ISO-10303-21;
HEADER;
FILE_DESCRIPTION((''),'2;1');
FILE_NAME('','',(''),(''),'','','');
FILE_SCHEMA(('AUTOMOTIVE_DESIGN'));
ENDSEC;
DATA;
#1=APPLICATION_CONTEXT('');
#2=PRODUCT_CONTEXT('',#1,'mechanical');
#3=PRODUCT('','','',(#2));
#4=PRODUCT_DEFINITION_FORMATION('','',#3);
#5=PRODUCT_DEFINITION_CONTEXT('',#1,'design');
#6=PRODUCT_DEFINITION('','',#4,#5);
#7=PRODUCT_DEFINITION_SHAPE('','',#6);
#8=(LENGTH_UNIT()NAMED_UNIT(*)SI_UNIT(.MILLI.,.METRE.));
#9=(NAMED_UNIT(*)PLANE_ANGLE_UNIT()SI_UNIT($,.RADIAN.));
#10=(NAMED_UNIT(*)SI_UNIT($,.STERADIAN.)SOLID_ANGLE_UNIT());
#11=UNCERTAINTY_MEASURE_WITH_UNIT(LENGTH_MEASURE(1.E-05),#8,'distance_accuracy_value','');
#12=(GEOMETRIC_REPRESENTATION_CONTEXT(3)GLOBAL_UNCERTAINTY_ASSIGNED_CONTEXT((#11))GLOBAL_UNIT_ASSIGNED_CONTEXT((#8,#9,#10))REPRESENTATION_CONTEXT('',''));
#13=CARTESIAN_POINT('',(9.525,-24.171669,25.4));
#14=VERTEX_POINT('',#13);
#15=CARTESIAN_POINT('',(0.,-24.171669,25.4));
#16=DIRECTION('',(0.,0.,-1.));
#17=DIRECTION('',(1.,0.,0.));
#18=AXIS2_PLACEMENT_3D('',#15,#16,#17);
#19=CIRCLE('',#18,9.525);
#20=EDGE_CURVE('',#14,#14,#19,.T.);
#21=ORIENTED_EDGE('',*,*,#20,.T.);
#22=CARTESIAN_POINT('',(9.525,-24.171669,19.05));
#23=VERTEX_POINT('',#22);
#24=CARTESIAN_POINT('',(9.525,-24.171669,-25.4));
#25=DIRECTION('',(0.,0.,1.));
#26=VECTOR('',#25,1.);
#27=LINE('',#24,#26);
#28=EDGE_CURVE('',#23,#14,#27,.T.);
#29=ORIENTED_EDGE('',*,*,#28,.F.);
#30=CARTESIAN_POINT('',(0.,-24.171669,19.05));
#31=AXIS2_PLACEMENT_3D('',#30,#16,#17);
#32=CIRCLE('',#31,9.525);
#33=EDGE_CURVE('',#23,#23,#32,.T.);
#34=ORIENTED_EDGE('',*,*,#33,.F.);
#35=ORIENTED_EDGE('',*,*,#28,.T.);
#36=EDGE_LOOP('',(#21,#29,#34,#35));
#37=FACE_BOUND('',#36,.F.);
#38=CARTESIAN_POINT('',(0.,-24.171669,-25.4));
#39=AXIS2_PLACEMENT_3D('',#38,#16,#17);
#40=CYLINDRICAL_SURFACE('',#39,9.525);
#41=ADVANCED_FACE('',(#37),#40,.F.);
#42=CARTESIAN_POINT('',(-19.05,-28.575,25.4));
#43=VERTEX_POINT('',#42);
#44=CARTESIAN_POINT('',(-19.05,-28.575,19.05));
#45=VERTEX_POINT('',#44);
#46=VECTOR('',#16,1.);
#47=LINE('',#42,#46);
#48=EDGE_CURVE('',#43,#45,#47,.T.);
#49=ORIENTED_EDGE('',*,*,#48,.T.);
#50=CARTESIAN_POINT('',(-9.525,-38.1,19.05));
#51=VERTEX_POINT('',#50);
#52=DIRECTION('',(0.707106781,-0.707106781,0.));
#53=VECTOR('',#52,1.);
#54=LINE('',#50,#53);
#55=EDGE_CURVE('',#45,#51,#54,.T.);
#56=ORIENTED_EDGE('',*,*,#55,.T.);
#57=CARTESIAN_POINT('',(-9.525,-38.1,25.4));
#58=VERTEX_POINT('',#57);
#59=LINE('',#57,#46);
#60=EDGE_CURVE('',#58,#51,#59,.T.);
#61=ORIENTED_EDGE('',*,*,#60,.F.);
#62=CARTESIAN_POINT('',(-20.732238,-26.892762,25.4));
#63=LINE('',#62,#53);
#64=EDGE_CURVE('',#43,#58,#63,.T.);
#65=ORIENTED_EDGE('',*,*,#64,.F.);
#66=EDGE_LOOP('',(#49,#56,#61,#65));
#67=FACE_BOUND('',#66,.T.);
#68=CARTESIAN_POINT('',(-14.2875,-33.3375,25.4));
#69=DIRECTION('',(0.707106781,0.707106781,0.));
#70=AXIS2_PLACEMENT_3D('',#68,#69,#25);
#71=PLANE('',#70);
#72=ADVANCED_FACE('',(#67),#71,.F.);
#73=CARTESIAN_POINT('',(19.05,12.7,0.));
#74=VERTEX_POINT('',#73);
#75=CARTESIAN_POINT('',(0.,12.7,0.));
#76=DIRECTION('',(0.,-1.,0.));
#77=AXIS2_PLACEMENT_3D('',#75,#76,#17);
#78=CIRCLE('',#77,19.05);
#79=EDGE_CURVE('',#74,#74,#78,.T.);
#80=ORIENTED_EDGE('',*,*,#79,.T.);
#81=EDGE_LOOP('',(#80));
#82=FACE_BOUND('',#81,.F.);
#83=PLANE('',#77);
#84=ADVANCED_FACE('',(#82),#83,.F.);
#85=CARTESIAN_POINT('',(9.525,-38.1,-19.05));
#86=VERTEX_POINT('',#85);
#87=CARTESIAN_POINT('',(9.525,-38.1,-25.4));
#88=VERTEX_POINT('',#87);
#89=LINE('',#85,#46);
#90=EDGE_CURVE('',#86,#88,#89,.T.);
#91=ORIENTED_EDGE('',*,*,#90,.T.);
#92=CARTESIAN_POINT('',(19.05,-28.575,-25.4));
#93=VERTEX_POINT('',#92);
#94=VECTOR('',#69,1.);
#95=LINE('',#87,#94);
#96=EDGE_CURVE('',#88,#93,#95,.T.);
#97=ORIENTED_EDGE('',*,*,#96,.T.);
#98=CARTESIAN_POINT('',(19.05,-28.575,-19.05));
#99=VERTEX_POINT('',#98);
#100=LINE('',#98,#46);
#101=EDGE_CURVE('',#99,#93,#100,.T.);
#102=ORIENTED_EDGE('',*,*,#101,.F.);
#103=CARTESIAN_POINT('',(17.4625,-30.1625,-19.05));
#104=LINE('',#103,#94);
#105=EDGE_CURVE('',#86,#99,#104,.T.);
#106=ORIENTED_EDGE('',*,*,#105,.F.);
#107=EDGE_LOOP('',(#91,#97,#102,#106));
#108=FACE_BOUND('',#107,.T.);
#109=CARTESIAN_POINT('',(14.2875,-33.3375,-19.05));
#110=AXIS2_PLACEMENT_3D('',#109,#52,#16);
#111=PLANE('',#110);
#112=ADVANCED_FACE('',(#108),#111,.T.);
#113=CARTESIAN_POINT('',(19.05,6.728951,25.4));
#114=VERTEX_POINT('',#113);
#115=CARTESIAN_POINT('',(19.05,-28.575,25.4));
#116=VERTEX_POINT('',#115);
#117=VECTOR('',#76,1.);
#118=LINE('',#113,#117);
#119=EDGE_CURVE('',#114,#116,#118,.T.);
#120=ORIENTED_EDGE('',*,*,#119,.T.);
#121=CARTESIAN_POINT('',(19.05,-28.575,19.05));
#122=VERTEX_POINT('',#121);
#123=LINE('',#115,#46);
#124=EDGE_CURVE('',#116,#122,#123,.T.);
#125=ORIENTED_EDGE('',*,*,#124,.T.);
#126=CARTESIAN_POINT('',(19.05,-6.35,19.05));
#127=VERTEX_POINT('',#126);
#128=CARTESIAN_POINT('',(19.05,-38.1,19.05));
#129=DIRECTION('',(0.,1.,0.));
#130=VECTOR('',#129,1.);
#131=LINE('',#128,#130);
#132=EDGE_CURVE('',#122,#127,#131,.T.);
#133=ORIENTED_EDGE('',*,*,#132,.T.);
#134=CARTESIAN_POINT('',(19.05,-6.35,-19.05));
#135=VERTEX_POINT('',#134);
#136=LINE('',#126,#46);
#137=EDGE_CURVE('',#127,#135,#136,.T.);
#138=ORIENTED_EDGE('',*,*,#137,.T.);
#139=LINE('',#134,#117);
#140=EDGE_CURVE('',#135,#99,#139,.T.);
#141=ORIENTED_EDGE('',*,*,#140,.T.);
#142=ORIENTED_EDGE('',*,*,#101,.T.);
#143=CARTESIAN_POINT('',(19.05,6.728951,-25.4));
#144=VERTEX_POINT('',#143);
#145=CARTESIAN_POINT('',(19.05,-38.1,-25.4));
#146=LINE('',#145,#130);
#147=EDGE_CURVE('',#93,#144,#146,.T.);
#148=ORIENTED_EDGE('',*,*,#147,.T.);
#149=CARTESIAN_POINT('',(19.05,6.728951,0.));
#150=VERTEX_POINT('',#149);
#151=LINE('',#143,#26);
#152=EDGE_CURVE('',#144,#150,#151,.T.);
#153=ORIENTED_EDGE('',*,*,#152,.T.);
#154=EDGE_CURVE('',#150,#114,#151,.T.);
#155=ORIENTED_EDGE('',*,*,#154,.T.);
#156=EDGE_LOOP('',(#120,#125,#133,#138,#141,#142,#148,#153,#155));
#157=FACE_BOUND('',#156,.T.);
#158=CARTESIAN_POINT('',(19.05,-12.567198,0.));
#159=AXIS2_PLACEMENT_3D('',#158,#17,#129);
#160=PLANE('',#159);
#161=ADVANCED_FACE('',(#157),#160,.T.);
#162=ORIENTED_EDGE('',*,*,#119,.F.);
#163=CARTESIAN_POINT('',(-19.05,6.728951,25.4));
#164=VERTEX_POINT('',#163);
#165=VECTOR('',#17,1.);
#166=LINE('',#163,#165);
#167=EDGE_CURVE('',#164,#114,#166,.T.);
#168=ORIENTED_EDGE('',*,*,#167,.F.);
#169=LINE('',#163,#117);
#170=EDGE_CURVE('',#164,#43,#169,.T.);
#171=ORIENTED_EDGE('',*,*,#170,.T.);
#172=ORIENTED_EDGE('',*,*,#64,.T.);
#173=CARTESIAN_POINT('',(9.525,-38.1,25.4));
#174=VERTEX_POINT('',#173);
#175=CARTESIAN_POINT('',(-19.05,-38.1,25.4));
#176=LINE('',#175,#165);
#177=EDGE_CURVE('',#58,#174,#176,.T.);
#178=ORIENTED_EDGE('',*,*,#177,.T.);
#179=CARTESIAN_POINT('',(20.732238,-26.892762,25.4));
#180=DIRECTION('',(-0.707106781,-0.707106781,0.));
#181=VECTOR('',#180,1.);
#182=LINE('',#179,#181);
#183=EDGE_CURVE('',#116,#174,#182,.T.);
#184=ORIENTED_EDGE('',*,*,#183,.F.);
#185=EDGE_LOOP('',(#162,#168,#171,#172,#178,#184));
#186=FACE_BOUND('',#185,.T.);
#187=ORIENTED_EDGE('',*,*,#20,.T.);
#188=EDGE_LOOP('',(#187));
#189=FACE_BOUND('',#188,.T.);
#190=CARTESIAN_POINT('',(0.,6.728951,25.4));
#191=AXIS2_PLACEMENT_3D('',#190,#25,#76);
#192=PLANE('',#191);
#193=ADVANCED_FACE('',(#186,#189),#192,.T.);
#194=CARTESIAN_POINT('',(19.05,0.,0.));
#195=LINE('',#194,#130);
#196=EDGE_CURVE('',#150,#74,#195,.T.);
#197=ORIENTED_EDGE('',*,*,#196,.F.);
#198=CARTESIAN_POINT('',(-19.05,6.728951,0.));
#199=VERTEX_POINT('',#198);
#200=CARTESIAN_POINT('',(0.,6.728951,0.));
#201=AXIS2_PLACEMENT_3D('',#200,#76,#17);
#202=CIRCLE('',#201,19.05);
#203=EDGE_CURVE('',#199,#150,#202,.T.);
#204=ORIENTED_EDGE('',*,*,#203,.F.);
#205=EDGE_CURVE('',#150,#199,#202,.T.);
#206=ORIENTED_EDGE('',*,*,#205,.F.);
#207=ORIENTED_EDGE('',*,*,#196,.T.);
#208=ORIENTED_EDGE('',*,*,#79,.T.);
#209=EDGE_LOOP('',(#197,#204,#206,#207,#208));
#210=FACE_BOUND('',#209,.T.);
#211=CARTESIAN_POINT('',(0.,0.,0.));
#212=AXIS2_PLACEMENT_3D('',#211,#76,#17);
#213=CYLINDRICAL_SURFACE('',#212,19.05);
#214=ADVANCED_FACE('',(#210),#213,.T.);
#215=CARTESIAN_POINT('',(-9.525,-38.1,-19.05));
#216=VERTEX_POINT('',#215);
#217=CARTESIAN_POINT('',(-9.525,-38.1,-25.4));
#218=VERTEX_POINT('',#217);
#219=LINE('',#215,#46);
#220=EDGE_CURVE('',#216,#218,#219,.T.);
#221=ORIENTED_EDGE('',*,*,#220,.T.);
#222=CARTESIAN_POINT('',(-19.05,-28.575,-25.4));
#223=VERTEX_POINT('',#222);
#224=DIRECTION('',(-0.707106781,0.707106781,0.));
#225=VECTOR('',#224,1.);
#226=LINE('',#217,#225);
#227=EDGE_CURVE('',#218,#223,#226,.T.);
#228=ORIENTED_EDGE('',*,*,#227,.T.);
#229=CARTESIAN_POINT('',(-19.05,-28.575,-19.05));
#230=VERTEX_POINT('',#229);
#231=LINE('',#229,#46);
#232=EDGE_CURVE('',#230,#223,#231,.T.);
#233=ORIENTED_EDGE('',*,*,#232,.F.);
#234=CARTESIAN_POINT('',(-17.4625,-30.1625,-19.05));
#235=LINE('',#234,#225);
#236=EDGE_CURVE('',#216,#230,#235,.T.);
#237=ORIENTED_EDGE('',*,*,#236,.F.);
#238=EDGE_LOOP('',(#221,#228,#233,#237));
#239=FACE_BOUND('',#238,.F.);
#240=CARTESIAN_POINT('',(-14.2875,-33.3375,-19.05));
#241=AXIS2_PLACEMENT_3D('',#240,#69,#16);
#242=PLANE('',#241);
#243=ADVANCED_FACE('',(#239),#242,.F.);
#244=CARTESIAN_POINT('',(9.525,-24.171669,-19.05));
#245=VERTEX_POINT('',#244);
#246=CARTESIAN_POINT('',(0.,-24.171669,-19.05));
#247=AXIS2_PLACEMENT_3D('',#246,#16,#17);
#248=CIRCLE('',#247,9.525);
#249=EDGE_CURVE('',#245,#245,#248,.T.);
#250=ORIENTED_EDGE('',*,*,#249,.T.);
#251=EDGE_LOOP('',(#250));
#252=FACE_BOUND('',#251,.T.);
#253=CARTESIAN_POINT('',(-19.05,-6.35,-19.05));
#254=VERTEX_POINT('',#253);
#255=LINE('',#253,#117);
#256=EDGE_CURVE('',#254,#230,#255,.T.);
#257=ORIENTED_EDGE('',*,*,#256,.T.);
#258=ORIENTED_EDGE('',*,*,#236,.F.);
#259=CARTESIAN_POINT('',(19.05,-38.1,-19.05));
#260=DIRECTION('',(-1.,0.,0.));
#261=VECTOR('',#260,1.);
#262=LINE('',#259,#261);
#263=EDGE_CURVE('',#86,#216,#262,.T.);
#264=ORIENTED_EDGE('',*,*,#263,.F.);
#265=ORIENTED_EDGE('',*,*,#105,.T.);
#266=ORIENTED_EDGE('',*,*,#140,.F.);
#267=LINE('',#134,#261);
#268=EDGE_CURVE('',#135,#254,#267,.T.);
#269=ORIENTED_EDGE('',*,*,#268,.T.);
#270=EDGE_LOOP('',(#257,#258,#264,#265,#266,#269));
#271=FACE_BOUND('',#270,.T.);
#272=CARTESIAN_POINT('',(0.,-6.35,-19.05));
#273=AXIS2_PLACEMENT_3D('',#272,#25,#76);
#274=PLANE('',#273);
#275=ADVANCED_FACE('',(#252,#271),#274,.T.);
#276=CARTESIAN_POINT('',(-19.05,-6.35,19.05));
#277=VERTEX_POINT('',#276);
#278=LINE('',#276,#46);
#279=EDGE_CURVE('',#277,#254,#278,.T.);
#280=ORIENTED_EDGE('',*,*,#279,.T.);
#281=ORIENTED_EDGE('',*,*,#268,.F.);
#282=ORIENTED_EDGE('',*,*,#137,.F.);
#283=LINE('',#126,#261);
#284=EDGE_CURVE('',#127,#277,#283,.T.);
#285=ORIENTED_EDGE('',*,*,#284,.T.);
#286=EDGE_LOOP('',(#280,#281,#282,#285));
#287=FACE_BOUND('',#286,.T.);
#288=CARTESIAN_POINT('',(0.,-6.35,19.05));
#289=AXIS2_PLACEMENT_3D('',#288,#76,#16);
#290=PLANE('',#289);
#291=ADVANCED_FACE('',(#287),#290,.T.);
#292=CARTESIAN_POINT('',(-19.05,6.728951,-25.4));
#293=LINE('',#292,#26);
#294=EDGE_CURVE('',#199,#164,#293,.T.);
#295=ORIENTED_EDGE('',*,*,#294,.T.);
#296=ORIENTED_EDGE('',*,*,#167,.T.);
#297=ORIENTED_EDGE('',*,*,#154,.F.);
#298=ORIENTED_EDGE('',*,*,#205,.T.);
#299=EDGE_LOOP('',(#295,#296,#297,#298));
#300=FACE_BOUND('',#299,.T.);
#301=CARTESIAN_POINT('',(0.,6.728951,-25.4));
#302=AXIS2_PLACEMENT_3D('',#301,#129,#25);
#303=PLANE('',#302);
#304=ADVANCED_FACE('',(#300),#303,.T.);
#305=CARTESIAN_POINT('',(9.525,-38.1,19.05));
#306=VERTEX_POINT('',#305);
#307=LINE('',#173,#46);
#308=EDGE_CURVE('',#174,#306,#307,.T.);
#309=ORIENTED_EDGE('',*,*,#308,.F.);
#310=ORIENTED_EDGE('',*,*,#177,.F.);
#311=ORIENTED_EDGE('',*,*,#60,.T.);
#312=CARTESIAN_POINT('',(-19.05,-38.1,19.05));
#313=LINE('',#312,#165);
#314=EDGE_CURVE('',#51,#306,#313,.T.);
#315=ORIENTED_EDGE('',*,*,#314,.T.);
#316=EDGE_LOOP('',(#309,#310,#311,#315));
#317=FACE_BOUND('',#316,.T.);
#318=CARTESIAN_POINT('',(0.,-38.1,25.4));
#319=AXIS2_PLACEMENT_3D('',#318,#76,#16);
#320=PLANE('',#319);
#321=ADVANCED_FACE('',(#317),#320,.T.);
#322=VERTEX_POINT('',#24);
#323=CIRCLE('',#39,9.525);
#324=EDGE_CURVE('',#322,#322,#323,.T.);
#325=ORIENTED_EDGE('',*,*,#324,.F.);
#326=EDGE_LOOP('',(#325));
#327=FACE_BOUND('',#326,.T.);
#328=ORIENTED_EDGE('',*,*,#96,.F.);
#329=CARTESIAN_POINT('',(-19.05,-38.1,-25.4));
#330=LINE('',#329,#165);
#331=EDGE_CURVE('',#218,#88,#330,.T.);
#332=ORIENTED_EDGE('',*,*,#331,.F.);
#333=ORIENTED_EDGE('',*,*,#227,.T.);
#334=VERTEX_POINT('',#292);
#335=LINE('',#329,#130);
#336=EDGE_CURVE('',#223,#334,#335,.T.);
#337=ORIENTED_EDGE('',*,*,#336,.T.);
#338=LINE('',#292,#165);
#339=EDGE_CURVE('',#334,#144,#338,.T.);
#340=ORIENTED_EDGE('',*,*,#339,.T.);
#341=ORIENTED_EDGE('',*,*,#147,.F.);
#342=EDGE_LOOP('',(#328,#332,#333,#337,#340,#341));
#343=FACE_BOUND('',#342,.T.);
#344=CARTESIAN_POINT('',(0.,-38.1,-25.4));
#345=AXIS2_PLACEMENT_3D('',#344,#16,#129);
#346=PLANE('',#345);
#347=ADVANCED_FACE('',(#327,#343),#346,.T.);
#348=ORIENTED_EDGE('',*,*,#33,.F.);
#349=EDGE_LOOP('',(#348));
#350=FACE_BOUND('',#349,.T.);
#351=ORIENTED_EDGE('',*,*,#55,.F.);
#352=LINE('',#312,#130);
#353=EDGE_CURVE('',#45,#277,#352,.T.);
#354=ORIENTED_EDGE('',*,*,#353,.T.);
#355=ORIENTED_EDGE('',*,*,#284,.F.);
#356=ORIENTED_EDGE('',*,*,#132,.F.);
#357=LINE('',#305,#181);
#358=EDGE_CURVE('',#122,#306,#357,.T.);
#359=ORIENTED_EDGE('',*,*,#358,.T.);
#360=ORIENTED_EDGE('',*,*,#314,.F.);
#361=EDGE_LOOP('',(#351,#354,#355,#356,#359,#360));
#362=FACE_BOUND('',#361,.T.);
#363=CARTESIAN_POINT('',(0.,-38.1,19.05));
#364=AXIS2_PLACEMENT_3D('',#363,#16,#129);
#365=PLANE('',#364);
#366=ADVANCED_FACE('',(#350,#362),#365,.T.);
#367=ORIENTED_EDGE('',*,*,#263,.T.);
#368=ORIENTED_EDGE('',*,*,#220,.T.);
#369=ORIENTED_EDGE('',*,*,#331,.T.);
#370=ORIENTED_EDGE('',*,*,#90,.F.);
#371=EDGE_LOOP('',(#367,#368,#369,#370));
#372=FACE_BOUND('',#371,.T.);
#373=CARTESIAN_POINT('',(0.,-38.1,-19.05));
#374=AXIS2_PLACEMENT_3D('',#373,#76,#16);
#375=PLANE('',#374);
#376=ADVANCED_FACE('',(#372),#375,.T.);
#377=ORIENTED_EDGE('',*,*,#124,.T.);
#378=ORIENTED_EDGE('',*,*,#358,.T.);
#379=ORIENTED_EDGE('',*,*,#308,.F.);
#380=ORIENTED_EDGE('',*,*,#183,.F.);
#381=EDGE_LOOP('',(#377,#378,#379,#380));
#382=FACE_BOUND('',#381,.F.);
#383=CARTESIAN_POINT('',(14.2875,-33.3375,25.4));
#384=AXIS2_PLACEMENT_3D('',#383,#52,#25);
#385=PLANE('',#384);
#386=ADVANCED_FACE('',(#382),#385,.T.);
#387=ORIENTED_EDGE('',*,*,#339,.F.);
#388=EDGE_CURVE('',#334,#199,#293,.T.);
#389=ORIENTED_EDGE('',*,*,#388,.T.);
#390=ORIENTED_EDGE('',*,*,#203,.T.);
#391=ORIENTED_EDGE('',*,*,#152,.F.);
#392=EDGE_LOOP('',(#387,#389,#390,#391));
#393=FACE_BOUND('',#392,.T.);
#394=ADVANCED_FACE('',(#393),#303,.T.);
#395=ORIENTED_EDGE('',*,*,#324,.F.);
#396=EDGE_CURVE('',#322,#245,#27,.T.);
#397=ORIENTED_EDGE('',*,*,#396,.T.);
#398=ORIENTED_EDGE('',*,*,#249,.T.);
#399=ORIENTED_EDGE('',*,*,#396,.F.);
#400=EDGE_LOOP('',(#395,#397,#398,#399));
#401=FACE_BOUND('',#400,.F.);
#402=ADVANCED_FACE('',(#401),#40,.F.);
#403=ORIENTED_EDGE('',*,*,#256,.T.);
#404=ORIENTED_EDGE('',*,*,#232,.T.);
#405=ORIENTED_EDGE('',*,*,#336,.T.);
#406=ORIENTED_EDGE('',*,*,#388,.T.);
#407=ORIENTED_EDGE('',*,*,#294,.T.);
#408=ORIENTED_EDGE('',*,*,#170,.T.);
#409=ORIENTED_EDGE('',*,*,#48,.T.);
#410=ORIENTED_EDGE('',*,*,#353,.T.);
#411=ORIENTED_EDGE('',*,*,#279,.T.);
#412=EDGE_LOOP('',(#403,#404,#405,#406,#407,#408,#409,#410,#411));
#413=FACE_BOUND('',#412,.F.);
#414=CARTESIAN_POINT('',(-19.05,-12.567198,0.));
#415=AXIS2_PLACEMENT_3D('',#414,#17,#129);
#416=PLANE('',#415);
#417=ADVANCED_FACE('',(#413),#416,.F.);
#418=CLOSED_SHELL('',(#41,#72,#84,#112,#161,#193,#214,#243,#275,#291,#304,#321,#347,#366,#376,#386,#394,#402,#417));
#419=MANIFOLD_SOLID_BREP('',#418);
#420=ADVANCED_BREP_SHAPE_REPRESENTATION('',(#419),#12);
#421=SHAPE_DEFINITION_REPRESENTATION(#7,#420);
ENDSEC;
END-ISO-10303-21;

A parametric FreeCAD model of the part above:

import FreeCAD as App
import Part
import Sketcher
from FreeCAD import Vector
Q = App.Units.Quantity


def edges_at(feature, points):
    """Names of the edges that pass closest to the given points."""
    edges = feature.Shape.Edges
    near = lambda p: min(range(len(edges)), key=lambda i: edges[i].distToShape(Part.Vertex(*p))[0])
    return sorted({f"Edge{near(p) + 1}" for p in points})


def add_polygon(sketch, points):
    """Adds a closed chain of lines whose ends are joined by coincident constraints."""
    first, n = sketch.GeometryCount, len(points)
    for a, b in zip(points, points[1:] + points[:1]):
        sketch.addGeometry(Part.LineSegment(App.Vector(*a, 0), App.Vector(*b, 0)), False)
    for i in range(n):
        sketch.addConstraint(Sketcher.Constraint("Coincident", first + i, 2, first + (i + 1) % n, 1))

doc = App.newDocument("Part")
body = doc.addObject("PartDesign::Body", "Body")

# Sketch on YZ plane
sketch1 = body.newObject("Sketcher::SketchObject", "Sketch")
sketch1.AttachmentSupport = (doc.getObject("YZ_Plane"), [""])
sketch1.MapMode = "FlatFace"
add_polygon(sketch1, [(-38, -19), (-38, -25), (7, -25), (7, 25), (-38, 25), (-38, 19), (-6, 19), (-6, -19)])  # lines 0-7
sketch1.addConstraint([
    Sketcher.Constraint("Vertical", 0),
    Sketcher.Constraint("Horizontal", 1),
    Sketcher.Constraint("Vertical", 2),
    Sketcher.Constraint("Horizontal", 3),
    Sketcher.Constraint("Vertical", 4),
    Sketcher.Constraint("Horizontal", 5),
    Sketcher.Constraint("Vertical", 6),
    Sketcher.Constraint("Horizontal", 7),
    Sketcher.Constraint("Symmetric", 0, 2, 3, 2, -1),
    Sketcher.Constraint("Equal", 0, 4),
    Sketcher.Constraint("DistanceY", 2, 1, 2, 2, Q("2 in")),
    Sketcher.Constraint("DistanceY", 6, 2, 6, 1, Q("1.5 in")),
    Sketcher.Constraint("DistanceX", 5, 1, 5, 2, Q("1.25 in")),
    Sketcher.Constraint("DistanceX", 0, 2, -1, 1, Q("1.5 in")),
    Sketcher.Constraint("DistanceX", 1, 1, 1, 2, Q("44.828951 mm")),
])
pad1 = body.newObject("PartDesign::Pad", "Pad")
pad1.Profile = sketch1
pad1.Length = Q("1.5 in")
pad1.Midplane = True

# Sketch on XY plane
sketch2 = body.newObject("Sketcher::SketchObject", "Sketch001")
sketch2.AttachmentSupport = (doc.getObject("XY_Plane"), [""])
sketch2.MapMode = "FlatFace"
sketch2.AttachmentOffset = App.Placement(Vector(0, 0, -1 * 25.4), App.Rotation())
sketch2.addGeometry(Part.Circle(Vector(0, -24, 0), Vector(0, 0, 1), 10), False)
sketch2.addConstraint([
    Sketcher.Constraint("PointOnObject", 0, 3, -2),
    Sketcher.Constraint("Diameter", 0, Q("0.75 in")),
    Sketcher.Constraint("DistanceY", 0, 3, -1, 1, Q("24.171669 mm")),
])
pocket1 = body.newObject("PartDesign::Pocket", "Pocket")
pocket1.Profile = sketch2
pocket1.Type = "ThroughAll"
pocket1.Reversed = True
doc.recompute()

chamfer = body.newObject("PartDesign::Chamfer", "Chamfer")
chamfer.Base = (pocket1, edges_at(pocket1, [
    (-19.05, -38.1, 22.225),
    (19.05, -38.1, 22.225),
    (-19.05, -38.1, -22.225),
    (19.05, -38.1, -22.225),
]))
chamfer.Size = Q("0.375 in")

# Sketch on XZ plane
sketch3 = body.newObject("Sketcher::SketchObject", "Sketch002")
sketch3.AttachmentSupport = (doc.getObject("XZ_Plane"), [""])
sketch3.MapMode = "FlatFace"
sketch3.addGeometry(Part.Circle(Vector(0, 0, 0), Vector(0, 0, 1), 19), False)
sketch3.addConstraint([
    Sketcher.Constraint("Coincident", 0, 3, -1, 1),
    Sketcher.Constraint("Diameter", 0, Q("1.5 in")),
])
pad2 = body.newObject("PartDesign::Pad", "Pad001")
pad2.Profile = sketch3
pad2.Length = Q("0.5 in")
pad2.Reversed = True

doc.recompute()
